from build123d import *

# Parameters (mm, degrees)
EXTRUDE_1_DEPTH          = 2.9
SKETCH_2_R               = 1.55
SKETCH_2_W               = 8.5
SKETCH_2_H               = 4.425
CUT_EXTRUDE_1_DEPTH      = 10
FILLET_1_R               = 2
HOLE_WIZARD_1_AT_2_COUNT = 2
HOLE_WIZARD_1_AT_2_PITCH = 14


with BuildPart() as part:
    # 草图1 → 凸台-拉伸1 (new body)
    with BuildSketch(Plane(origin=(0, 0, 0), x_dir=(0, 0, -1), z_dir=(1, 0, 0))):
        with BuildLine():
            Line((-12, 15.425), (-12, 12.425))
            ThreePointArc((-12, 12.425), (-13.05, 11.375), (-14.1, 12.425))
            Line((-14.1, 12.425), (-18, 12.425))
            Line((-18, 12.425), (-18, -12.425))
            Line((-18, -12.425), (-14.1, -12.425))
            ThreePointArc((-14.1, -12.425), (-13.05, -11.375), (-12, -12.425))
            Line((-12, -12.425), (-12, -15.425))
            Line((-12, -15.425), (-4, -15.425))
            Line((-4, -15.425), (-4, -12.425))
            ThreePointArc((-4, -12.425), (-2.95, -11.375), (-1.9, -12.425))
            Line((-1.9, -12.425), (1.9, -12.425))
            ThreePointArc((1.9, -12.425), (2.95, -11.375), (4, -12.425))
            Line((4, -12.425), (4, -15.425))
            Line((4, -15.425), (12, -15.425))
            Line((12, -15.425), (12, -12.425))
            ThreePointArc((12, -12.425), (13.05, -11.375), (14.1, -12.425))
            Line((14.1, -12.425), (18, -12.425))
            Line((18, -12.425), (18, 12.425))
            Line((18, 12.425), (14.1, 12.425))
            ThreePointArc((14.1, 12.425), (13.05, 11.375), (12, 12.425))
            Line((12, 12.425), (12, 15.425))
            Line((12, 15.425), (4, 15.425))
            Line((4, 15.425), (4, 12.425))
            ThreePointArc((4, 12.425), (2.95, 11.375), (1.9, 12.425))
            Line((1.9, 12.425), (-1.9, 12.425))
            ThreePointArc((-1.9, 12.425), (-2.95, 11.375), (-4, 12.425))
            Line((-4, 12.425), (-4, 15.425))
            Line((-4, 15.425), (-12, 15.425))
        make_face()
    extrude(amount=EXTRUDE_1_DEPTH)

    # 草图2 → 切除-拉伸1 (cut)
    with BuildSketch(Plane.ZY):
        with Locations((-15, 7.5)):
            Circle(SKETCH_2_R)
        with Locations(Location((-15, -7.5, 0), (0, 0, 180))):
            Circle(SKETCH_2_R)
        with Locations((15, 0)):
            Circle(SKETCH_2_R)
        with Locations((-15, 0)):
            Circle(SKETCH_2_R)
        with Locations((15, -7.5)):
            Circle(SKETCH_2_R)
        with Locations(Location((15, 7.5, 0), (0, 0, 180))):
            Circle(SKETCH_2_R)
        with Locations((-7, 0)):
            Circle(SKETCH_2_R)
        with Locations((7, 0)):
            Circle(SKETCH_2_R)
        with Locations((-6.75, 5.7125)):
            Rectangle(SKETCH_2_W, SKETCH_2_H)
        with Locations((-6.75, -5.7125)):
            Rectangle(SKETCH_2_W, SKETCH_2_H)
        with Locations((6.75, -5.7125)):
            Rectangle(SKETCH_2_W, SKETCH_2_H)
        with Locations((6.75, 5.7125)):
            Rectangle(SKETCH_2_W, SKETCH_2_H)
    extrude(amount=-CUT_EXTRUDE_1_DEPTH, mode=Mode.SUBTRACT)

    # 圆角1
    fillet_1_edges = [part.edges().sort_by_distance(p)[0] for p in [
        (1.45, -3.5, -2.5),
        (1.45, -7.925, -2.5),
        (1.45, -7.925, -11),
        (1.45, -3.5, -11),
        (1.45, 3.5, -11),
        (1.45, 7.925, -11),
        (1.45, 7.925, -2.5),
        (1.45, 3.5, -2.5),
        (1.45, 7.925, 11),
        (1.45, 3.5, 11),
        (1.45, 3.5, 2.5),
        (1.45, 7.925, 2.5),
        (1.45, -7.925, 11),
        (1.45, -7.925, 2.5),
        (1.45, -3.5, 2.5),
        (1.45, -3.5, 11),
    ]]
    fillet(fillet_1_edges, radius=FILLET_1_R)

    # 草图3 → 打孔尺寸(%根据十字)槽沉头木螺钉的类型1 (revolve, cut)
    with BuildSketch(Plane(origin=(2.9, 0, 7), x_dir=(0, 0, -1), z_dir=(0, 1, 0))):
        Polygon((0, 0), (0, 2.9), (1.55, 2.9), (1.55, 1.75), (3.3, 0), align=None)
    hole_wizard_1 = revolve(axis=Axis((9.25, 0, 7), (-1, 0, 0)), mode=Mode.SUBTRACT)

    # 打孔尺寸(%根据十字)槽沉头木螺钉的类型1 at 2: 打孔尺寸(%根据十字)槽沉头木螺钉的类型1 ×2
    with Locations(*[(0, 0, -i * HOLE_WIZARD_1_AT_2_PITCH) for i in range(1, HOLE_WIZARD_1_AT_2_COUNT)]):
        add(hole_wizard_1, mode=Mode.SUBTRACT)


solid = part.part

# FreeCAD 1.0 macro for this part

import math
import FreeCAD as App
import Part
import Sketcher
from FreeCAD import Vector
Q = App.Units.Quantity


def edges_at(feature, points):
    """Names of the edges that pass closest to the given points."""
    edges = feature.Shape.Edges
    near = lambda p: min(range(len(edges)), key=lambda i: edges[i].distToShape(Part.Vertex(*p))[0])
    return sorted({f"Edge{near(p) + 1}" for p in points})

doc = App.newDocument("Part")
body = doc.addObject("PartDesign::Body", "Body")

sketch1 = doc.addObject("Sketcher::SketchObject", "Sketch")
body.addObject(sketch1)
sketch1.AttachmentSupport = (doc.YZ_Plane, [""])
sketch1.MapMode = "FlatFace"
sketch1.addGeometry(Part.LineSegment(Vector(15.4, 12, 0), Vector(12.4, 12, 0)), False)
sketch1.addGeometry(Part.ArcOfCircle(Part.Circle(Vector(12.4, 13.1, 0), Vector(0, 0, 1), 1.1), math.radians(90), math.radians(270)), False)
sketch1.addGeometry(Part.LineSegment(Vector(12.4, 14.1, 0), Vector(12.4, 18, 0)), False)
sketch1.addGeometry(Part.LineSegment(Vector(12.4, 18, 0), Vector(-12.4, 18, 0)), False)
sketch1.addGeometry(Part.LineSegment(Vector(-12.4, 18, 0), Vector(-12.4, 14.1, 0)), False)
sketch1.addGeometry(Part.ArcOfCircle(Part.Circle(Vector(-12.4, 13.1, 0), Vector(0, 0, 1), 1.1), math.radians(-90), math.radians(90)), False)
sketch1.addGeometry(Part.LineSegment(Vector(-12.4, 12, 0), Vector(-15.4, 12, 0)), False)
sketch1.addGeometry(Part.LineSegment(Vector(-15.4, 12, 0), Vector(-15.4, 4, 0)), False)
sketch1.addGeometry(Part.LineSegment(Vector(-15.4, 4, 0), Vector(-12.4, 4, 0)), False)
sketch1.addGeometry(Part.ArcOfCircle(Part.Circle(Vector(-12.4, 3, 0), Vector(0, 0, 1), 1.1), math.radians(-90), math.radians(90)), False)
sketch1.addGeometry(Part.LineSegment(Vector(-12.4, 1.9, 0), Vector(-12.4, -1.9, 0)), False)
sketch1.addGeometry(Part.ArcOfCircle(Part.Circle(Vector(-12.4, -3, 0), Vector(0, 0, 1), 1.1), math.radians(-90), math.radians(90)), False)
sketch1.addGeometry(Part.LineSegment(Vector(-12.4, -4, 0), Vector(-15.4, -4, 0)), False)
sketch1.addGeometry(Part.LineSegment(Vector(-15.4, -4, 0), Vector(-15.4, -12, 0)), False)
sketch1.addGeometry(Part.LineSegment(Vector(-15.4, -12, 0), Vector(-12.4, -12, 0)), False)
sketch1.addGeometry(Part.ArcOfCircle(Part.Circle(Vector(-12.4, -13.1, 0), Vector(0, 0, 1), 1.1), math.radians(-90), math.radians(90)), False)
sketch1.addGeometry(Part.LineSegment(Vector(-12.4, -14.1, 0), Vector(-12.4, -18, 0)), False)
sketch1.addGeometry(Part.LineSegment(Vector(-12.4, -18, 0), Vector(12.4, -18, 0)), False)
sketch1.addGeometry(Part.LineSegment(Vector(12.4, -18, 0), Vector(12.4, -14.1, 0)), False)
sketch1.addGeometry(Part.ArcOfCircle(Part.Circle(Vector(12.4, -13.1, 0), Vector(0, 0, 1), 1.1), math.radians(90), math.radians(270)), False)
sketch1.addGeometry(Part.LineSegment(Vector(12.4, -12, 0), Vector(15.4, -12, 0)), False)
sketch1.addGeometry(Part.LineSegment(Vector(15.4, -12, 0), Vector(15.4, -4, 0)), False)
sketch1.addGeometry(Part.LineSegment(Vector(15.4, -4, 0), Vector(12.4, -4, 0)), False)
sketch1.addGeometry(Part.ArcOfCircle(Part.Circle(Vector(12.4, -3, 0), Vector(0, 0, 1), 1.1), math.radians(90), math.radians(270)), False)
sketch1.addGeometry(Part.LineSegment(Vector(12.4, -1.9, 0), Vector(12.4, 1.9, 0)), False)
sketch1.addGeometry(Part.ArcOfCircle(Part.Circle(Vector(12.4, 3, 0), Vector(0, 0, 1), 1.1), math.radians(90), math.radians(270)), False)
sketch1.addGeometry(Part.LineSegment(Vector(12.4, 4, 0), Vector(15.4, 4, 0)), False)
sketch1.addGeometry(Part.LineSegment(Vector(15.4, 4, 0), Vector(15.4, 12, 0)), False)
sketch1.addConstraint(Sketcher.Constraint("Tangent", 0, 2, 1, 2))
sketch1.addConstraint(Sketcher.Constraint("Coincident", 1, 1, 2, 1))
sketch1.addConstraint(Sketcher.Constraint("Coincident", 2, 2, 3, 1))
sketch1.addConstraint(Sketcher.Constraint("Coincident", 3, 2, 4, 1))
sketch1.addConstraint(Sketcher.Constraint("Coincident", 4, 2, 5, 2))
sketch1.addConstraint(Sketcher.Constraint("Tangent", 5, 1, 6, 1))
sketch1.addConstraint(Sketcher.Constraint("Coincident", 6, 2, 7, 1))
sketch1.addConstraint(Sketcher.Constraint("Coincident", 7, 2, 8, 1))
sketch1.addConstraint(Sketcher.Constraint("Tangent", 8, 2, 9, 2))
sketch1.addConstraint(Sketcher.Constraint("Coincident", 9, 1, 10, 1))
sketch1.addConstraint(Sketcher.Constraint("Coincident", 10, 2, 11, 2))
sketch1.addConstraint(Sketcher.Constraint("Tangent", 11, 1, 12, 1))
sketch1.addConstraint(Sketcher.Constraint("Coincident", 12, 2, 13, 1))
sketch1.addConstraint(Sketcher.Constraint("Coincident", 13, 2, 14, 1))
sketch1.addConstraint(Sketcher.Constraint("Tangent", 14, 2, 15, 2))
sketch1.addConstraint(Sketcher.Constraint("Coincident", 15, 1, 16, 1))
sketch1.addConstraint(Sketcher.Constraint("Coincident", 16, 2, 17, 1))
sketch1.addConstraint(Sketcher.Constraint("Coincident", 17, 2, 18, 1))
sketch1.addConstraint(Sketcher.Constraint("Coincident", 18, 2, 19, 2))
sketch1.addConstraint(Sketcher.Constraint("Tangent", 19, 1, 20, 1))
sketch1.addConstraint(Sketcher.Constraint("Coincident", 20, 2, 21, 1))
sketch1.addConstraint(Sketcher.Constraint("Coincident", 21, 2, 22, 1))
sketch1.addConstraint(Sketcher.Constraint("Tangent", 22, 2, 23, 2))
sketch1.addConstraint(Sketcher.Constraint("Coincident", 23, 1, 24, 1))
sketch1.addConstraint(Sketcher.Constraint("Coincident", 24, 2, 25, 2))
sketch1.addConstraint(Sketcher.Constraint("Tangent", 25, 1, 26, 1))
sketch1.addConstraint(Sketcher.Constraint("Coincident", 26, 2, 27, 1))
sketch1.addConstraint(Sketcher.Constraint("Coincident", 27, 2, 0, 1))
sketch1.addConstraint(Sketcher.Constraint("Horizontal", 0))
sketch1.addConstraint(Sketcher.Constraint("Vertical", 2))
sketch1.addConstraint(Sketcher.Constraint("Horizontal", 3))
sketch1.addConstraint(Sketcher.Constraint("Vertical", 4))
sketch1.addConstraint(Sketcher.Constraint("Horizontal", 6))
sketch1.addConstraint(Sketcher.Constraint("Vertical", 7))
sketch1.addConstraint(Sketcher.Constraint("Horizontal", 8))
sketch1.addConstraint(Sketcher.Constraint("Vertical", 10))
sketch1.addConstraint(Sketcher.Constraint("Horizontal", 12))
sketch1.addConstraint(Sketcher.Constraint("Vertical", 13))
sketch1.addConstraint(Sketcher.Constraint("Horizontal", 14))
sketch1.addConstraint(Sketcher.Constraint("Vertical", 16))
sketch1.addConstraint(Sketcher.Constraint("Horizontal", 17))
sketch1.addConstraint(Sketcher.Constraint("Vertical", 18))
sketch1.addConstraint(Sketcher.Constraint("Horizontal", 20))
sketch1.addConstraint(Sketcher.Constraint("Vertical", 21))
sketch1.addConstraint(Sketcher.Constraint("Horizontal", 22))
sketch1.addConstraint(Sketcher.Constraint("Vertical", 24))
sketch1.addConstraint(Sketcher.Constraint("Horizontal", 26))
sketch1.addConstraint(Sketcher.Constraint("Vertical", 27))
sketch1.addConstraint(Sketcher.Constraint("Equal", 1, 5))
sketch1.addConstraint(Sketcher.Constraint("Equal", 5, 9))
sketch1.addConstraint(Sketcher.Constraint("Equal", 9, 11))
sketch1.addConstraint(Sketcher.Constraint("Equal", 11, 15))
sketch1.addConstraint(Sketcher.Constraint("Equal", 15, 19))
sketch1.addConstraint(Sketcher.Constraint("Equal", 19, 23))
sketch1.addConstraint(Sketcher.Constraint("Equal", 23, 25))
sketch1.addConstraint(Sketcher.Constraint("Symmetric", 1, 3, 15, 3, -1, 1))
sketch1.addConstraint(Sketcher.Constraint("Symmetric", 5, 3, 19, 3, -1, 1))
sketch1.addConstraint(Sketcher.Constraint("Symmetric", 9, 3, 23, 3, -1, 1))
sketch1.addConstraint(Sketcher.Constraint("Symmetric", 11, 3, 25, 3, -1, 1))
sketch1.addConstraint(Sketcher.Constraint("Symmetric", 2, 2, 16, 2, -1, 1))
sketch1.addConstraint(Sketcher.Constraint("Symmetric", 1, 3, 5, 3, -2))
sketch1.addConstraint(Sketcher.Constraint("Symmetric", 11, 3, 23, 3, -2))
sketch1.addConstraint(Sketcher.Constraint("Vertical", 5, 3, 9, 3))
sketch1.addConstraint(Sketcher.Constraint("Vertical", 0, 2, 1, 1))
sketch1.addConstraint(Sketcher.Constraint("Vertical", 15, 3, 3, 2))
sketch1.addConstraint(Sketcher.Constraint("Vertical", 8, 2, 9, 1))
sketch1.addConstraint(Sketcher.Constraint("Vertical", 7, 2, 12, 2))
sketch1.addConstraint(Sketcher.Constraint("Vertical", 2, 2, 17, 2))
sketch1.addConstraint(Sketcher.Constraint("Vertical", 22, 2, 23, 1))
sketch1.addConstraint(Sketcher.Constraint("Vertical", 21, 2, 26, 2))
sketch1.addConstraint(Sketcher.Constraint("Equal", 0, 6))
sketch1.addConstraint(Sketcher.Constraint("DistanceX", 0, 2, 0, 1, 3.0))
sketch1.addConstraint(Sketcher.Constraint("DistanceY", 7, 2, 7, 1, 8.0))
sketch1.addConstraint(Sketcher.Constraint("Radius", 1, 1.05))
sketch1.addConstraint(Sketcher.Constraint("DistanceY", 2, 1, 2, 2, 3.9))
sketch1.addConstraint(Sketcher.Constraint("DistanceY", 10, 2, 10, 1, 3.8))
sketch1.addConstraint(Sketcher.Constraint("DistanceX", 3, 2, 3, 1, 24.85))
pad1 = doc.addObject("PartDesign::Pad", "Pad")
body.addObject(pad1)
pad1.Profile = sketch1
pad1.Length = 2.9

sketch2 = doc.addObject("Sketcher::SketchObject", "Sketch001")
body.addObject(sketch2)
sketch2.AttachmentSupport = (doc.YZ_Plane, [""])
sketch2.MapMode = "FlatFace"
sketch2.addGeometry(Part.Circle(Vector(7.5, -15, 0), Vector(0, 0, 1), 1.6), False)
sketch2.addGeometry(Part.Circle(Vector(-7.5, -15, 0), Vector(0, 0, 1), 1.6), False)
sketch2.addGeometry(Part.Circle(Vector(0, 15, 0), Vector(0, 0, 1), 1.6), False)
sketch2.addGeometry(Part.Circle(Vector(0, -15, 0), Vector(0, 0, 1), 1.6), False)
sketch2.addGeometry(Part.Circle(Vector(-7.5, 15, 0), Vector(0, 0, 1), 1.6), False)
sketch2.addGeometry(Part.Circle(Vector(7.5, 15, 0), Vector(0, 0, 1), 1.6), False)
sketch2.addGeometry(Part.Circle(Vector(0, -7, 0), Vector(0, 0, 1), 1.6), False)
sketch2.addGeometry(Part.Circle(Vector(0, 7, 0), Vector(0, 0, 1), 1.6), False)
sketch2.addGeometry(Part.LineSegment(Vector(7.9, -11, 0), Vector(3.5, -11, 0)), False)
sketch2.addGeometry(Part.LineSegment(Vector(3.5, -11, 0), Vector(3.5, -2.5, 0)), False)
sketch2.addGeometry(Part.LineSegment(Vector(3.5, -2.5, 0), Vector(7.9, -2.5, 0)), False)
sketch2.addGeometry(Part.LineSegment(Vector(7.9, -2.5, 0), Vector(7.9, -11, 0)), False)
sketch2.addGeometry(Part.LineSegment(Vector(-3.5, -11, 0), Vector(-7.9, -11, 0)), False)
sketch2.addGeometry(Part.LineSegment(Vector(-7.9, -11, 0), Vector(-7.9, -2.5, 0)), False)
sketch2.addGeometry(Part.LineSegment(Vector(-7.9, -2.5, 0), Vector(-3.5, -2.5, 0)), False)
sketch2.addGeometry(Part.LineSegment(Vector(-3.5, -2.5, 0), Vector(-3.5, -11, 0)), False)
sketch2.addGeometry(Part.LineSegment(Vector(-3.5, 2.5, 0), Vector(-7.9, 2.5, 0)), False)
sketch2.addGeometry(Part.LineSegment(Vector(-7.9, 2.5, 0), Vector(-7.9, 11, 0)), False)
sketch2.addGeometry(Part.LineSegment(Vector(-7.9, 11, 0), Vector(-3.5, 11, 0)), False)
sketch2.addGeometry(Part.LineSegment(Vector(-3.5, 11, 0), Vector(-3.5, 2.5, 0)), False)
sketch2.addGeometry(Part.LineSegment(Vector(7.9, 2.5, 0), Vector(3.5, 2.5, 0)), False)
sketch2.addGeometry(Part.LineSegment(Vector(3.5, 2.5, 0), Vector(3.5, 11, 0)), False)
sketch2.addGeometry(Part.LineSegment(Vector(3.5, 11, 0), Vector(7.9, 11, 0)), False)
sketch2.addGeometry(Part.LineSegment(Vector(7.9, 11, 0), Vector(7.9, 2.5, 0)), False)
sketch2.addConstraint(Sketcher.Constraint("Coincident", 8, 2, 9, 1))
sketch2.addConstraint(Sketcher.Constraint("Coincident", 9, 2, 10, 1))
sketch2.addConstraint(Sketcher.Constraint("Coincident", 10, 2, 11, 1))
sketch2.addConstraint(Sketcher.Constraint("Coincident", 11, 2, 8, 1))
sketch2.addConstraint(Sketcher.Constraint("Coincident", 12, 2, 13, 1))
sketch2.addConstraint(Sketcher.Constraint("Coincident", 13, 2, 14, 1))
sketch2.addConstraint(Sketcher.Constraint("Coincident", 14, 2, 15, 1))
sketch2.addConstraint(Sketcher.Constraint("Coincident", 15, 2, 12, 1))
sketch2.addConstraint(Sketcher.Constraint("Coincident", 16, 2, 17, 1))
sketch2.addConstraint(Sketcher.Constraint("Coincident", 17, 2, 18, 1))
sketch2.addConstraint(Sketcher.Constraint("Coincident", 18, 2, 19, 1))
sketch2.addConstraint(Sketcher.Constraint("Coincident", 19, 2, 16, 1))
sketch2.addConstraint(Sketcher.Constraint("Coincident", 20, 2, 21, 1))
sketch2.addConstraint(Sketcher.Constraint("Coincident", 21, 2, 22, 1))
sketch2.addConstraint(Sketcher.Constraint("Coincident", 22, 2, 23, 1))
sketch2.addConstraint(Sketcher.Constraint("Coincident", 23, 2, 20, 1))
sketch2.addConstraint(Sketcher.Constraint("Horizontal", 8))
sketch2.addConstraint(Sketcher.Constraint("Vertical", 9))
sketch2.addConstraint(Sketcher.Constraint("Horizontal", 10))
sketch2.addConstraint(Sketcher.Constraint("Vertical", 11))
sketch2.addConstraint(Sketcher.Constraint("Horizontal", 12))
sketch2.addConstraint(Sketcher.Constraint("Vertical", 13))
sketch2.addConstraint(Sketcher.Constraint("Horizontal", 14))
sketch2.addConstraint(Sketcher.Constraint("Vertical", 15))
sketch2.addConstraint(Sketcher.Constraint("Horizontal", 16))
sketch2.addConstraint(Sketcher.Constraint("Vertical", 17))
sketch2.addConstraint(Sketcher.Constraint("Horizontal", 18))
sketch2.addConstraint(Sketcher.Constraint("Vertical", 19))
sketch2.addConstraint(Sketcher.Constraint("Horizontal", 20))
sketch2.addConstraint(Sketcher.Constraint("Vertical", 21))
sketch2.addConstraint(Sketcher.Constraint("Horizontal", 22))
sketch2.addConstraint(Sketcher.Constraint("Vertical", 23))
sketch2.addConstraint(Sketcher.Constraint("Equal", 0, 1))
sketch2.addConstraint(Sketcher.Constraint("Equal", 1, 2))
sketch2.addConstraint(Sketcher.Constraint("Equal", 2, 3))
sketch2.addConstraint(Sketcher.Constraint("Equal", 3, 4))
sketch2.addConstraint(Sketcher.Constraint("Equal", 4, 5))
sketch2.addConstraint(Sketcher.Constraint("Equal", 5, 6))
sketch2.addConstraint(Sketcher.Constraint("Equal", 6, 7))
sketch2.addConstraint(Sketcher.Constraint("Symmetric", 2, 3, 3, 3, -1, 1))
sketch2.addConstraint(Sketcher.Constraint("Symmetric", 0, 3, 4, 3, -1, 1))
sketch2.addConstraint(Sketcher.Constraint("Symmetric", 1, 3, 5, 3, -1, 1))
sketch2.addConstraint(Sketcher.Constraint("Symmetric", 6, 3, 7, 3, -1, 1))
sketch2.addConstraint(Sketcher.Constraint("Symmetric", 10, 2, 16, 2, -1, 1))
sketch2.addConstraint(Sketcher.Constraint("Symmetric", 8, 2, 18, 2, -1, 1))
sketch2.addConstraint(Sketcher.Constraint("Symmetric", 14, 2, 20, 2, -1, 1))
sketch2.addConstraint(Sketcher.Constraint("Symmetric", 12, 2, 22, 2, -1, 1))
sketch2.addConstraint(Sketcher.Constraint("Symmetric", 0, 3, 1, 3, -2))
sketch2.addConstraint(Sketcher.Constraint("Symmetric", 11, 2, 12, 2, -2))
sketch2.addConstraint(Sketcher.Constraint("Symmetric", 9, 2, 14, 2, -2))
sketch2.addConstraint(Sketcher.Constraint("PointOnObject", 2, 3, -2))
sketch2.addConstraint(Sketcher.Constraint("PointOnObject", 6, 3, -2))
sketch2.addConstraint(Sketcher.Constraint("Horizontal", 1, 3, 3, 3))
sketch2.addConstraint(Sketcher.Constraint("Diameter", 0, 3.1))
sketch2.addConstraint(Sketcher.Constraint("DistanceY", 9, 1, 9, 2, 8.5))
sketch2.addConstraint(Sketcher.Constraint("DistanceY", 0, 3, -1, 1, 15.0))
sketch2.addConstraint(Sketcher.Constraint("DistanceY", 6, 3, -1, 1, 7.0))
sketch2.addConstraint(Sketcher.Constraint("DistanceY", 8, 2, -1, 1, 11.0))
sketch2.addConstraint(Sketcher.Constraint("DistanceX", 1, 3, 0, 3, 15.0))
sketch2.addConstraint(Sketcher.Constraint("DistanceX", 8, 2, 0, 3, 4.0))
sketch2.addConstraint(Sketcher.Constraint("DistanceX", 8, 2, 8, 1, 4.425))
pocket1 = doc.addObject("PartDesign::Pocket", "Pocket")
body.addObject(pocket1)
pocket1.Profile = sketch2
pocket1.Length = 10
pocket1.Reversed = True
doc.recompute()

fillet = doc.addObject("PartDesign::Fillet", "Fillet")
body.addObject(fillet)
fillet.Base = (pocket1, edges_at(pocket1, [
    (1.45, -3.5, -2.5),
    (1.45, -7.925, -2.5),
    (1.45, -7.925, -11),
    (1.45, -3.5, -11),
    (1.45, 3.5, -11),
    (1.45, 7.925, -11),
    (1.45, 7.925, -2.5),
    (1.45, 3.5, -2.5),
    (1.45, 7.925, 11),
    (1.45, 3.5, 11),
    (1.45, 3.5, 2.5),
    (1.45, 7.925, 2.5),
    (1.45, -7.925, 11),
    (1.45, -7.925, 2.5),
    (1.45, -3.5, 2.5),
    (1.45, -3.5, 11),
]))
fillet.Radius = 2

sketch3 = doc.addObject("Sketcher::SketchObject", "Sketch002")
body.addObject(sketch3)
sketch3.AttachmentSupport = (doc.XZ_Plane, [""])
sketch3.MapMode = "FlatFace"
sketch3.addGeometry(Part.LineSegment(Vector(0, 7, 0), Vector(2.9, 7, 0)), False)
sketch3.addGeometry(Part.LineSegment(Vector(2.9, 7, 0), Vector(2.9, 3.7, 0)), False)
sketch3.addGeometry(Part.LineSegment(Vector(2.9, 3.7, 0), Vector(1.1, 5.5, 0)), False)
sketch3.addGeometry(Part.LineSegment(Vector(1.1, 5.5, 0), Vector(0, 5.5, 0)), False)
sketch3.addGeometry(Part.LineSegment(Vector(0, 5.5, 0), Vector(0, 7, 0)), False)
sketch3.addGeometry(Part.LineSegment(Vector(2.9, 7, 0), Vector(0, 7, 0)), True)
sketch3.addConstraint(Sketcher.Constraint("Coincident", 0, 2, 1, 1))
sketch3.addConstraint(Sketcher.Constraint("Coincident", 1, 2, 2, 1))
sketch3.addConstraint(Sketcher.Constraint("Coincident", 2, 2, 3, 1))
sketch3.addConstraint(Sketcher.Constraint("Coincident", 3, 2, 4, 1))
sketch3.addConstraint(Sketcher.Constraint("Coincident", 4, 2, 0, 1))
sketch3.addConstraint(Sketcher.Constraint("Horizontal", 0))
sketch3.addConstraint(Sketcher.Constraint("Vertical", 1))
sketch3.addConstraint(Sketcher.Constraint("Horizontal", 3))
sketch3.addConstraint(Sketcher.Constraint("Vertical", 4))
sketch3.addConstraint(Sketcher.Constraint("Horizontal", 5))
sketch3.addConstraint(Sketcher.Constraint("Coincident", 5, 1, 0, 2))
sketch3.addConstraint(Sketcher.Constraint("PointOnObject", 3, 2, -2))
sketch3.addConstraint(Sketcher.Constraint("PointOnObject", 5, 2, -2))
sketch3.addConstraint(Sketcher.Constraint("Angle", 2, Q("135 deg")))
sketch3.addConstraint(Sketcher.Constraint("DistanceX", 0, 1, 0, 2, 2.9))
sketch3.addConstraint(Sketcher.Constraint("DistanceY", 1, 2, 1, 1, 3.3))
sketch3.addConstraint(Sketcher.Constraint("DistanceY", -1, 1, 0, 2, 7.0))
sketch3.addConstraint(Sketcher.Constraint("DistanceX", 3, 2, 3, 1, 1.15))
groove = doc.addObject("PartDesign::Groove", "Groove")
body.addObject(groove)
groove.Profile = sketch3
groove.ReferenceAxis = (sketch3, ["Axis0"])
groove.Angle = 360
doc.recompute()

linearpattern = doc.addObject("PartDesign::LinearPattern", "LinearPattern")
body.addObject(linearpattern)
linearpattern.Originals = [groove]
linearpattern.Direction = (doc.Z_Axis, [""])
linearpattern.Mode = "offset"
linearpattern.Offset = 14
linearpattern.Occurrences = 2
linearpattern.Reversed = True
body.Tip = linearpattern

doc.recompute()
